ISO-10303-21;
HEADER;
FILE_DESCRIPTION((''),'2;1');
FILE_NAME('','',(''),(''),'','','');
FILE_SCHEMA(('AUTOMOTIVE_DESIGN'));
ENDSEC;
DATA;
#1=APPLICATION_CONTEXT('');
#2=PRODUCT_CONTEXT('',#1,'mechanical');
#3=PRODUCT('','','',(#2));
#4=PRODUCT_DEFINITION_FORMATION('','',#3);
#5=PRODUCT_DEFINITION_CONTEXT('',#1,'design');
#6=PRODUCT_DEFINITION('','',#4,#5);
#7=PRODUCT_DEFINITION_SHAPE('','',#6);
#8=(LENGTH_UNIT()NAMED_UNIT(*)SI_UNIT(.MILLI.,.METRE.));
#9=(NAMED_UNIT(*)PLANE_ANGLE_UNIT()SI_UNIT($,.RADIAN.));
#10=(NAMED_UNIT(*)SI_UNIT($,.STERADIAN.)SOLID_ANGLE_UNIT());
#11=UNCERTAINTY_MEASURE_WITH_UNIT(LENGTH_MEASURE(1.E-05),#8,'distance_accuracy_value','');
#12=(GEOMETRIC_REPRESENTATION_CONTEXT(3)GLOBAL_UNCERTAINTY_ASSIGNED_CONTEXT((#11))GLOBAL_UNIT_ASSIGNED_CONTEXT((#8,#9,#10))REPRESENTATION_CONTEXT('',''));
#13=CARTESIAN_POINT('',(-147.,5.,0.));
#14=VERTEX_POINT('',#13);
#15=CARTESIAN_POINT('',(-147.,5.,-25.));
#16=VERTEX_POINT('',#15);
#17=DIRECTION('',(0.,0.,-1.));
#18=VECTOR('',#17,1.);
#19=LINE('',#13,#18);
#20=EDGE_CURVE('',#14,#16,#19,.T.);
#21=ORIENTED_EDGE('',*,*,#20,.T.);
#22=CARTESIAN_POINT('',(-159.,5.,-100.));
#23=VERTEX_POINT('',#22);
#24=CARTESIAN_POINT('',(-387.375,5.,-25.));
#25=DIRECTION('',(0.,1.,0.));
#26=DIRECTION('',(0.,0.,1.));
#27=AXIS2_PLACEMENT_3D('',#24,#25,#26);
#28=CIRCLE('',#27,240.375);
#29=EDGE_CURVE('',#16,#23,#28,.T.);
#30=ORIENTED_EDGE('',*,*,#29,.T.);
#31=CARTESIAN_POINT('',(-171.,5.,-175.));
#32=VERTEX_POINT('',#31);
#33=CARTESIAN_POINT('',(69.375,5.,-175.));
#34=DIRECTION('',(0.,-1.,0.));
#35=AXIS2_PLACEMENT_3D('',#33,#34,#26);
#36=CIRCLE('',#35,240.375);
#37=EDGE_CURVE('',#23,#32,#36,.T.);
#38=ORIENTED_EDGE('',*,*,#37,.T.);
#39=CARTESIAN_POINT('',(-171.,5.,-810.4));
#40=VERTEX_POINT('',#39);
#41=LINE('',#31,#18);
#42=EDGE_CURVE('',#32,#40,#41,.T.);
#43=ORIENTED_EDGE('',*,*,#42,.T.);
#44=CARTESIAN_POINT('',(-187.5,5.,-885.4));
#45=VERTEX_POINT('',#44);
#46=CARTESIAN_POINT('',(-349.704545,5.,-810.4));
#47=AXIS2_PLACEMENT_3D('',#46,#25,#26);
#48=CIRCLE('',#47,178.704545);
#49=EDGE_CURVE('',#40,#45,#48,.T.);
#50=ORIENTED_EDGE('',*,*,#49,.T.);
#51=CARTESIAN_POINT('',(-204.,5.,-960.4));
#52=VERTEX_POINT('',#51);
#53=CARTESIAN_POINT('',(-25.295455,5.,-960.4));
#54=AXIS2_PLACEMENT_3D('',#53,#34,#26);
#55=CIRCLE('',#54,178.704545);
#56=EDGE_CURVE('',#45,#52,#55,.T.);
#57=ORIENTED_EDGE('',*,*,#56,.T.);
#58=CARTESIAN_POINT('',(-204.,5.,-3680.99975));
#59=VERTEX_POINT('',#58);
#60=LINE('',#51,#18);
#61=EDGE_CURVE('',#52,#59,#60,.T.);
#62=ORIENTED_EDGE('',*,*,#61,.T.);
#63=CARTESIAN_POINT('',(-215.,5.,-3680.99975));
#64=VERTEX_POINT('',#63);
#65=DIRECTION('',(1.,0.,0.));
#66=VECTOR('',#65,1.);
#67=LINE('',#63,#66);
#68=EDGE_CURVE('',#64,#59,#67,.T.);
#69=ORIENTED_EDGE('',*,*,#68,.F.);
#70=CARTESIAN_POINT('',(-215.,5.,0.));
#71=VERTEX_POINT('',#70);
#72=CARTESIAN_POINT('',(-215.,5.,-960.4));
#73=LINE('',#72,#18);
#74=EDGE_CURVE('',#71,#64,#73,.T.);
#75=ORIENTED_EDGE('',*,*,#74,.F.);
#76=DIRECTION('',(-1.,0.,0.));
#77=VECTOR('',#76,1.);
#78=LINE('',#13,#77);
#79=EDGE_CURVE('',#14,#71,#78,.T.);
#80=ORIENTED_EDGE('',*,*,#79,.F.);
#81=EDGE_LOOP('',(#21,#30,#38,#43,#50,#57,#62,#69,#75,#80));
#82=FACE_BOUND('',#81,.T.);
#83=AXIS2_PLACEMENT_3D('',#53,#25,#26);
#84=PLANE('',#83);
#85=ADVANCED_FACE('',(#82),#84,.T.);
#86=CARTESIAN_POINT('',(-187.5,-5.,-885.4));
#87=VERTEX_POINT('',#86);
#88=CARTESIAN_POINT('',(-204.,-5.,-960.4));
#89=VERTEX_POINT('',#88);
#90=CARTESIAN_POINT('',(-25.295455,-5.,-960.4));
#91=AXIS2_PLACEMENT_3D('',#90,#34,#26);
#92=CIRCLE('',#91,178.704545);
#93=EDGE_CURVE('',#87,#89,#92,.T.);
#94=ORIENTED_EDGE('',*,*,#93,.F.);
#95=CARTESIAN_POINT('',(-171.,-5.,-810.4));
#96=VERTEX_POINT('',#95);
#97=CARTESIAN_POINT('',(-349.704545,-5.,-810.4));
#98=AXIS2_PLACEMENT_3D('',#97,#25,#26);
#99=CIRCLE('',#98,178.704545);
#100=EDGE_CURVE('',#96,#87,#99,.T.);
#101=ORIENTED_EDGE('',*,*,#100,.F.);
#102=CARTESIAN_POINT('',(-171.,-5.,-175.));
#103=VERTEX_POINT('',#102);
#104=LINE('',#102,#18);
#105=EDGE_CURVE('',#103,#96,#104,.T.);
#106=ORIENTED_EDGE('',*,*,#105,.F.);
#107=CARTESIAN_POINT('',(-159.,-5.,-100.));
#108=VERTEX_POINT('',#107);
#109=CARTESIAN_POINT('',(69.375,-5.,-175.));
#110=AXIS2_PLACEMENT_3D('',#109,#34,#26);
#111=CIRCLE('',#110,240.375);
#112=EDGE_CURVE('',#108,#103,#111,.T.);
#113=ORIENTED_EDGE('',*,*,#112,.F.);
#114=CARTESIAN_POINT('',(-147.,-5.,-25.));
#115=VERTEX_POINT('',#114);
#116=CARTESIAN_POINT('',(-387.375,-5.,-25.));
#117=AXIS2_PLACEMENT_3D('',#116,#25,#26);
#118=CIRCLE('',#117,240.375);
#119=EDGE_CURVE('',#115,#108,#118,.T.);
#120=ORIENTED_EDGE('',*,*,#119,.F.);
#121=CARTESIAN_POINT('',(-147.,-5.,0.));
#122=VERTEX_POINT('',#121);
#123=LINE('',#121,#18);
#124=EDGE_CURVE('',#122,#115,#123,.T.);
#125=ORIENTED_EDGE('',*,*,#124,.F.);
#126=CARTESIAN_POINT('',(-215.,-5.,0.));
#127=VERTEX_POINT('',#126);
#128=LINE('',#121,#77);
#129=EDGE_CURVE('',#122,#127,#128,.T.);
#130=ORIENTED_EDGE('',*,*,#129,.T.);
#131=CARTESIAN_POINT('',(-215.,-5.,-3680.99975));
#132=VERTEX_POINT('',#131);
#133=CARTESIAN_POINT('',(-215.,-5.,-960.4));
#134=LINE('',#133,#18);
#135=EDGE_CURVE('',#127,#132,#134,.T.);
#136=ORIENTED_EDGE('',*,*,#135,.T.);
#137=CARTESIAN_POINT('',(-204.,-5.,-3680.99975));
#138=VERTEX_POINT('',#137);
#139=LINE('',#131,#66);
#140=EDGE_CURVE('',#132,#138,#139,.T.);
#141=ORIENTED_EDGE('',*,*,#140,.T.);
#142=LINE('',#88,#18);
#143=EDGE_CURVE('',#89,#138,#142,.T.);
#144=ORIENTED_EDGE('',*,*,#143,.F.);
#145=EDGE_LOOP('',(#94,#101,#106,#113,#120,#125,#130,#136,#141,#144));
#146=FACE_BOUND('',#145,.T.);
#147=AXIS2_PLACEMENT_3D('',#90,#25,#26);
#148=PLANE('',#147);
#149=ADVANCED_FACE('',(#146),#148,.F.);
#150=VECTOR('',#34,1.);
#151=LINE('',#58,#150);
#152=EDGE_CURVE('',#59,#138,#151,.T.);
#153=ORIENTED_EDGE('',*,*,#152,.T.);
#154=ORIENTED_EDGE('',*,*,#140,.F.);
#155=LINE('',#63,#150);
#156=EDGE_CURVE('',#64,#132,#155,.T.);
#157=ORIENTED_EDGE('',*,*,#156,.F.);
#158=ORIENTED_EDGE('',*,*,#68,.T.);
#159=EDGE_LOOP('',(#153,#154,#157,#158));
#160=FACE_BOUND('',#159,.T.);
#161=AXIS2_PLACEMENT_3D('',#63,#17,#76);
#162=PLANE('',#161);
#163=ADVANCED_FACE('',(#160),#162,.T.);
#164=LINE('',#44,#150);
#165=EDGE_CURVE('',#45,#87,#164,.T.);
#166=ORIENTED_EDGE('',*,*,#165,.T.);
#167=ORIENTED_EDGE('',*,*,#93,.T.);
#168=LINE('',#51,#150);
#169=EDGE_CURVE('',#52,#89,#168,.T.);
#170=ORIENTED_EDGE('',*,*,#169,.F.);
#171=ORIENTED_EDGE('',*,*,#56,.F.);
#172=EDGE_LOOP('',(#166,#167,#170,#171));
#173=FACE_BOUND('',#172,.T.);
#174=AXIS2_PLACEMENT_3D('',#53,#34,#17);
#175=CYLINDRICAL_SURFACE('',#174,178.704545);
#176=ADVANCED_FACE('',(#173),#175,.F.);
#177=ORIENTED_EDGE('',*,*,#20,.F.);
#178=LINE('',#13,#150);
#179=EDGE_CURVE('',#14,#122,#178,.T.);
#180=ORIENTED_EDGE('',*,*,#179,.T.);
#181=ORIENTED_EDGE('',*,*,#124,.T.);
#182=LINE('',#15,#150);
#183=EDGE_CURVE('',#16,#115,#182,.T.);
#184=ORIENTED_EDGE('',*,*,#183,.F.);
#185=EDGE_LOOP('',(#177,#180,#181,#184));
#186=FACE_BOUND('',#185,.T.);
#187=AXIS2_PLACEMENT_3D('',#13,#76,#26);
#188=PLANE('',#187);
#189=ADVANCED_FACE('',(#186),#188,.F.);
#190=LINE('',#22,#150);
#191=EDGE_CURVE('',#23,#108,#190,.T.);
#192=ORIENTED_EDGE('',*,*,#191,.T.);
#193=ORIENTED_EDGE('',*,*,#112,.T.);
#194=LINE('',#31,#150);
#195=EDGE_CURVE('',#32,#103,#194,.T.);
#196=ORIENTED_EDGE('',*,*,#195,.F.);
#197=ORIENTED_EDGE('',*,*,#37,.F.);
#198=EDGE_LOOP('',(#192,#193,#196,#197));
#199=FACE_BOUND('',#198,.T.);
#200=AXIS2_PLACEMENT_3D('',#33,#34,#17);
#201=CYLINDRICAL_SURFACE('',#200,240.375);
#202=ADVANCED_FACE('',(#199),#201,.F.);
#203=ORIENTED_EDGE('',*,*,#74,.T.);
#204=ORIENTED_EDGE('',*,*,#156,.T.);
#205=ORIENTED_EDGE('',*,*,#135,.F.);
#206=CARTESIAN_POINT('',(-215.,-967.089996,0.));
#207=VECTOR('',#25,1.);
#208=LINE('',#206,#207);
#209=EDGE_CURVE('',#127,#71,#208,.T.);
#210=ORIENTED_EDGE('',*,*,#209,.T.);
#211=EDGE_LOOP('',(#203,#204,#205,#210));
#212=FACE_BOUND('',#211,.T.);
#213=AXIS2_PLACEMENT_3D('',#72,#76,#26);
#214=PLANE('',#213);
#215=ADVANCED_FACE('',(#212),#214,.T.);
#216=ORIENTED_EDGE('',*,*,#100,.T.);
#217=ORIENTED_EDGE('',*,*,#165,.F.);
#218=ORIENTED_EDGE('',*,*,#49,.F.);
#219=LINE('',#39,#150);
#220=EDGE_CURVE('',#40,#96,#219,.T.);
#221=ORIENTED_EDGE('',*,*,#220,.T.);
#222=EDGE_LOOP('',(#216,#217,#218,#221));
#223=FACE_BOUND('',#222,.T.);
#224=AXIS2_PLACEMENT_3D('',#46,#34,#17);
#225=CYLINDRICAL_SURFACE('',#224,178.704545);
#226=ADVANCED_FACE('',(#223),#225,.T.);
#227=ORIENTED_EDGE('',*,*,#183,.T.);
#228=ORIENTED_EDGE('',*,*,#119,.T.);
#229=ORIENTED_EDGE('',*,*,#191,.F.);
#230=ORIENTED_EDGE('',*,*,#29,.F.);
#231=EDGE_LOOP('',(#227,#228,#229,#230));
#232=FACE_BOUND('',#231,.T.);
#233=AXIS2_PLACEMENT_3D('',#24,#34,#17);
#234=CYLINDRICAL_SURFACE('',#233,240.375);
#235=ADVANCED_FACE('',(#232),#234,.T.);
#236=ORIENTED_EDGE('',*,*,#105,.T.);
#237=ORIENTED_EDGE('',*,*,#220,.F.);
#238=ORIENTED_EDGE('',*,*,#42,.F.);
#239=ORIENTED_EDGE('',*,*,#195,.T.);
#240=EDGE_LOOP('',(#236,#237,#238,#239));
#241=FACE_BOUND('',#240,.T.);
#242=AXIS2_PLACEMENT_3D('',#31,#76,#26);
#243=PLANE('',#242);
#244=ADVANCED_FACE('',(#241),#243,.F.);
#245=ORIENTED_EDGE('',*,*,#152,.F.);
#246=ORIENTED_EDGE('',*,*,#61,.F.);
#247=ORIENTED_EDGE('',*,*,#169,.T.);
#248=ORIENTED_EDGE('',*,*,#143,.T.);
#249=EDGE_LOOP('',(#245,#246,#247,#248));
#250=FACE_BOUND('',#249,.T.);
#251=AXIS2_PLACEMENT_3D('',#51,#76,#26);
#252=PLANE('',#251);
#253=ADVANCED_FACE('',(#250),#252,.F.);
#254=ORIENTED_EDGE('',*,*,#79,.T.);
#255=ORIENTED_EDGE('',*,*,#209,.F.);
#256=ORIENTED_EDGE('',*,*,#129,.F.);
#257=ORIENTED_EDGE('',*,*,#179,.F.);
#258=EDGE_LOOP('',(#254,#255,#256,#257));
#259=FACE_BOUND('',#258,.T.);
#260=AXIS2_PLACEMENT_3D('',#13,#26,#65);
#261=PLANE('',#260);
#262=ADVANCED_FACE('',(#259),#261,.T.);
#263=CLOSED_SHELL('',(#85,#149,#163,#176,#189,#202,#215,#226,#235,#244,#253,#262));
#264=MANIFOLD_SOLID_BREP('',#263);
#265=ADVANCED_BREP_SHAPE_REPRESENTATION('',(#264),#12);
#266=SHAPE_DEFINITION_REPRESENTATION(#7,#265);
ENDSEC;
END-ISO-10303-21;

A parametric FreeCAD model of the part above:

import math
import FreeCAD as App
import Part
import Sketcher
from FreeCAD import Vector
Q = App.Units.Quantity

doc = App.newDocument("Part")
body = doc.addObject("PartDesign::Body", "Body")

sketch1 = doc.addObject("Sketcher::SketchObject", "Sketch")
body.addObject(sketch1)
sketch1.AttachmentSupport = (doc.XZ_Plane, [""])
sketch1.MapMode = "FlatFace"
sketch1.addGeometry(Part.LineSegment(Vector(-147, 0, 0), Vector(-147, -25, 0)), False)
sketch1.addGeometry(Part.ArcOfCircle(Part.Circle(Vector(-387.375, -25, 0), Vector(0, 0, 1), 240.375), math.radians(-18.180554), math.radians(0)), False)
sketch1.addGeometry(Part.ArcOfCircle(Part.Circle(Vector(69.375, -175, 0), Vector(0, 0, 1), 240.375), math.radians(161.819446), math.radians(180)), False)
sketch1.addGeometry(Part.LineSegment(Vector(-171, -175, 0), Vector(-171, -810.4, 0)), False)
sketch1.addGeometry(Part.ArcOfCircle(Part.Circle(Vector(-349.704545, -810.4, 0), Vector(0, 0, 1), 178.704545), math.radians(-24.814837), math.radians(0)), False)
sketch1.addGeometry(Part.ArcOfCircle(Part.Circle(Vector(-25.295455, -960.4, 0), Vector(0, 0, 1), 178.704545), math.radians(155.185163), math.radians(180)), False)
sketch1.addGeometry(Part.LineSegment(Vector(-204, -960.4, 0), Vector(-204, -3680.99975, 0)), False)
sketch1.addGeometry(Part.LineSegment(Vector(-204, -3680.99975, 0), Vector(-215, -3680.99975, 0)), False)
sketch1.addGeometry(Part.LineSegment(Vector(-215, -3680.99975, 0), Vector(-215, -960.4, 0)), False)
sketch1.addGeometry(Part.ArcOfCircle(Part.Circle(Vector(-25.295455, -960.4, 0), Vector(0, 0, 1), 189.704545), math.radians(155.185163), math.radians(180)), False)
sketch1.addGeometry(Part.ArcOfCircle(Part.Circle(Vector(-349.704545, -810.4, 0), Vector(0, 0, 1), 167.704545), math.radians(-24.814837), math.radians(0)), False)
sketch1.addGeometry(Part.LineSegment(Vector(-182, -810.4, 0), Vector(-182, -175, 0)), False)
sketch1.addGeometry(Part.ArcOfCircle(Part.Circle(Vector(69.375, -175, 0), Vector(0, 0, 1), 251.375), math.radians(161.819446), math.radians(180)), False)
sketch1.addGeometry(Part.ArcOfCircle(Part.Circle(Vector(-387.375, -25, 0), Vector(0, 0, 1), 229.375), math.radians(-18.180554), math.radians(0)), False)
sketch1.addGeometry(Part.LineSegment(Vector(-158, -25, 0), Vector(-158, 0, 0)), False)
sketch1.addGeometry(Part.LineSegment(Vector(-158, 0, 0), Vector(-147, 0, 0)), False)
sketch1.addConstraint(Sketcher.Constraint("Tangent", 0, 2, 1, 2))
sketch1.addConstraint(Sketcher.Constraint("Tangent", 1, 1, 2, 1))
sketch1.addConstraint(Sketcher.Constraint("Tangent", 2, 2, 3, 1))
sketch1.addConstraint(Sketcher.Constraint("Tangent", 3, 2, 4, 2))
sketch1.addConstraint(Sketcher.Constraint("Tangent", 4, 1, 5, 1))
sketch1.addConstraint(Sketcher.Constraint("Tangent", 5, 2, 6, 1))
sketch1.addConstraint(Sketcher.Constraint("Coincident", 6, 2, 7, 1))
sketch1.addConstraint(Sketcher.Constraint("Coincident", 7, 2, 8, 1))
sketch1.addConstraint(Sketcher.Constraint("Tangent", 8, 2, 9, 2))
sketch1.addConstraint(Sketcher.Constraint("Tangent", 9, 1, 10, 1))
sketch1.addConstraint(Sketcher.Constraint("Tangent", 10, 2, 11, 1))
sketch1.addConstraint(Sketcher.Constraint("Tangent", 11, 2, 12, 2))
sketch1.addConstraint(Sketcher.Constraint("Tangent", 12, 1, 13, 1))
sketch1.addConstraint(Sketcher.Constraint("Tangent", 13, 2, 14, 1))
sketch1.addConstraint(Sketcher.Constraint("Coincident", 14, 2, 15, 1))
sketch1.addConstraint(Sketcher.Constraint("Coincident", 15, 2, 0, 1))
sketch1.addConstraint(Sketcher.Constraint("Vertical", 0))
sketch1.addConstraint(Sketcher.Constraint("Vertical", 3))
sketch1.addConstraint(Sketcher.Constraint("Vertical", 6))
sketch1.addConstraint(Sketcher.Constraint("Horizontal", 7))
sketch1.addConstraint(Sketcher.Constraint("Vertical", 8))
sketch1.addConstraint(Sketcher.Constraint("Vertical", 11))
sketch1.addConstraint(Sketcher.Constraint("Vertical", 14))
sketch1.addConstraint(Sketcher.Constraint("Horizontal", 15))
sketch1.addConstraint(Sketcher.Constraint("Coincident", 9, 3, 5, 3))
sketch1.addConstraint(Sketcher.Constraint("Coincident", 10, 3, 4, 3))
sketch1.addConstraint(Sketcher.Constraint("Coincident", 12, 3, 2, 3))
sketch1.addConstraint(Sketcher.Constraint("Coincident", 13, 3, 1, 3))
sketch1.addConstraint(Sketcher.Constraint("Equal", 1, 2))
sketch1.addConstraint(Sketcher.Constraint("Equal", 4, 5))
sketch1.addConstraint(Sketcher.Constraint("PointOnObject", 14, 2, -1))
sketch1.addConstraint(Sketcher.Constraint("DistanceX", 7, 2, 7, 1, Q("11 mm")))
sketch1.addConstraint(Sketcher.Constraint("DistanceY", 0, 2, 0, 1, Q("25 mm")))
sketch1.addConstraint(Sketcher.Constraint("DistanceY", 3, 2, 3, 1, Q("635.4 mm")))
sketch1.addConstraint(Sketcher.Constraint("DistanceY", 2, 3, -1, 1, Q("175 mm")))
sketch1.addConstraint(Sketcher.Constraint("DistanceX", 0, 2, -1, 1, Q("147 mm")))
sketch1.addConstraint(Sketcher.Constraint("DistanceX", 2, 2, -1, 1, Q("171 mm")))
sketch1.addConstraint(Sketcher.Constraint("DistanceX", 5, 2, -1, 1, Q("204 mm")))
sketch1.addConstraint(Sketcher.Constraint("DistanceY", 5, 3, 4, 3, Q("150 mm")))
sketch1.addConstraint(Sketcher.Constraint("DistanceY", 6, 2, 6, 1, Q("2720.59975 mm")))
pad1 = doc.addObject("PartDesign::Pad", "Pad")
body.addObject(pad1)
pad1.Profile = sketch1
pad1.Length = 10
pad1.Midplane = True

sketch2 = doc.addObject("Sketcher::SketchObject", "Sketch001")
body.addObject(sketch2)
sketch2.AttachmentSupport = (doc.XZ_Plane, [""])
sketch2.MapMode = "FlatFace"
sketch2.AttachmentOffset = App.Placement(Vector(0, 0, -5), App.Rotation())
sketch2.addGeometry(Part.LineSegment(Vector(-158, 0, 0), Vector(-158, -25, 0)), False)
sketch2.addGeometry(Part.ArcOfCircle(Part.Circle(Vector(-387.375, -25, 0), Vector(0, 0, 1), 229.375), math.radians(-18.180554), math.radians(0)), False)
sketch2.addGeometry(Part.ArcOfCircle(Part.Circle(Vector(69.375, -175, 0), Vector(0, 0, 1), 251.375), math.radians(161.819446), math.radians(180)), False)
sketch2.addGeometry(Part.LineSegment(Vector(-182, -175, 0), Vector(-182, -810.4, 0)), False)
sketch2.addGeometry(Part.ArcOfCircle(Part.Circle(Vector(-349.704545, -810.4, 0), Vector(0, 0, 1), 167.704545), math.radians(-24.814837), math.radians(0)), False)
sketch2.addGeometry(Part.ArcOfCircle(Part.Circle(Vector(-25.295455, -960.4, 0), Vector(0, 0, 1), 189.704545), math.radians(155.185163), math.radians(180)), False)
sketch2.addGeometry(Part.LineSegment(Vector(-215, -960.4, 0), Vector(-215, 0, 0)), False)
sketch2.addGeometry(Part.LineSegment(Vector(-215, 0, 0), Vector(-158, 0, 0)), False)
sketch2.addConstraint(Sketcher.Constraint("Tangent", 0, 2, 1, 2))
sketch2.addConstraint(Sketcher.Constraint("Tangent", 1, 1, 2, 1))
sketch2.addConstraint(Sketcher.Constraint("Tangent", 2, 2, 3, 1))
sketch2.addConstraint(Sketcher.Constraint("Tangent", 3, 2, 4, 2))
sketch2.addConstraint(Sketcher.Constraint("Tangent", 4, 1, 5, 1))
sketch2.addConstraint(Sketcher.Constraint("Tangent", 5, 2, 6, 1))
sketch2.addConstraint(Sketcher.Constraint("Coincident", 6, 2, 7, 1))
sketch2.addConstraint(Sketcher.Constraint("Coincident", 7, 2, 0, 1))
sketch2.addConstraint(Sketcher.Constraint("Vertical", 0))
sketch2.addConstraint(Sketcher.Constraint("Vertical", 3))
sketch2.addConstraint(Sketcher.Constraint("Vertical", 6))
sketch2.addConstraint(Sketcher.Constraint("Horizontal", 7))
sketch2.addConstraint(Sketcher.Constraint("PointOnObject", 6, 2, -1))
sketch2.addConstraint(Sketcher.Constraint("DistanceX", 7, 1, 7, 2, Q("57 mm")))
sketch2.addConstraint(Sketcher.Constraint("DistanceY", 0, 2, 0, 1, Q("25 mm")))
sketch2.addConstraint(Sketcher.Constraint("DistanceY", 3, 2, 3, 1, Q("635.4 mm")))
sketch2.addConstraint(Sketcher.Constraint("DistanceY", 6, 1, 6, 2, Q("960.4 mm")))
sketch2.addConstraint(Sketcher.Constraint("DistanceY", 2, 3, -1, 1, Q("175 mm")))
sketch2.addConstraint(Sketcher.Constraint("DistanceX", 0, 2, -1, 1, Q("158 mm")))
sketch2.addConstraint(Sketcher.Constraint("DistanceX", 2, 2, -1, 1, Q("182 mm")))
sketch2.addConstraint(Sketcher.Constraint("Radius", 1, Q("229.375 mm")))
sketch2.addConstraint(Sketcher.Constraint("Radius", 4, Q("167.704545 mm")))
pad2 = doc.addObject("PartDesign::Pad", "Pad001")
body.addObject(pad2)
pad2.Profile = sketch2
pad2.Length = 10

doc.recompute()
